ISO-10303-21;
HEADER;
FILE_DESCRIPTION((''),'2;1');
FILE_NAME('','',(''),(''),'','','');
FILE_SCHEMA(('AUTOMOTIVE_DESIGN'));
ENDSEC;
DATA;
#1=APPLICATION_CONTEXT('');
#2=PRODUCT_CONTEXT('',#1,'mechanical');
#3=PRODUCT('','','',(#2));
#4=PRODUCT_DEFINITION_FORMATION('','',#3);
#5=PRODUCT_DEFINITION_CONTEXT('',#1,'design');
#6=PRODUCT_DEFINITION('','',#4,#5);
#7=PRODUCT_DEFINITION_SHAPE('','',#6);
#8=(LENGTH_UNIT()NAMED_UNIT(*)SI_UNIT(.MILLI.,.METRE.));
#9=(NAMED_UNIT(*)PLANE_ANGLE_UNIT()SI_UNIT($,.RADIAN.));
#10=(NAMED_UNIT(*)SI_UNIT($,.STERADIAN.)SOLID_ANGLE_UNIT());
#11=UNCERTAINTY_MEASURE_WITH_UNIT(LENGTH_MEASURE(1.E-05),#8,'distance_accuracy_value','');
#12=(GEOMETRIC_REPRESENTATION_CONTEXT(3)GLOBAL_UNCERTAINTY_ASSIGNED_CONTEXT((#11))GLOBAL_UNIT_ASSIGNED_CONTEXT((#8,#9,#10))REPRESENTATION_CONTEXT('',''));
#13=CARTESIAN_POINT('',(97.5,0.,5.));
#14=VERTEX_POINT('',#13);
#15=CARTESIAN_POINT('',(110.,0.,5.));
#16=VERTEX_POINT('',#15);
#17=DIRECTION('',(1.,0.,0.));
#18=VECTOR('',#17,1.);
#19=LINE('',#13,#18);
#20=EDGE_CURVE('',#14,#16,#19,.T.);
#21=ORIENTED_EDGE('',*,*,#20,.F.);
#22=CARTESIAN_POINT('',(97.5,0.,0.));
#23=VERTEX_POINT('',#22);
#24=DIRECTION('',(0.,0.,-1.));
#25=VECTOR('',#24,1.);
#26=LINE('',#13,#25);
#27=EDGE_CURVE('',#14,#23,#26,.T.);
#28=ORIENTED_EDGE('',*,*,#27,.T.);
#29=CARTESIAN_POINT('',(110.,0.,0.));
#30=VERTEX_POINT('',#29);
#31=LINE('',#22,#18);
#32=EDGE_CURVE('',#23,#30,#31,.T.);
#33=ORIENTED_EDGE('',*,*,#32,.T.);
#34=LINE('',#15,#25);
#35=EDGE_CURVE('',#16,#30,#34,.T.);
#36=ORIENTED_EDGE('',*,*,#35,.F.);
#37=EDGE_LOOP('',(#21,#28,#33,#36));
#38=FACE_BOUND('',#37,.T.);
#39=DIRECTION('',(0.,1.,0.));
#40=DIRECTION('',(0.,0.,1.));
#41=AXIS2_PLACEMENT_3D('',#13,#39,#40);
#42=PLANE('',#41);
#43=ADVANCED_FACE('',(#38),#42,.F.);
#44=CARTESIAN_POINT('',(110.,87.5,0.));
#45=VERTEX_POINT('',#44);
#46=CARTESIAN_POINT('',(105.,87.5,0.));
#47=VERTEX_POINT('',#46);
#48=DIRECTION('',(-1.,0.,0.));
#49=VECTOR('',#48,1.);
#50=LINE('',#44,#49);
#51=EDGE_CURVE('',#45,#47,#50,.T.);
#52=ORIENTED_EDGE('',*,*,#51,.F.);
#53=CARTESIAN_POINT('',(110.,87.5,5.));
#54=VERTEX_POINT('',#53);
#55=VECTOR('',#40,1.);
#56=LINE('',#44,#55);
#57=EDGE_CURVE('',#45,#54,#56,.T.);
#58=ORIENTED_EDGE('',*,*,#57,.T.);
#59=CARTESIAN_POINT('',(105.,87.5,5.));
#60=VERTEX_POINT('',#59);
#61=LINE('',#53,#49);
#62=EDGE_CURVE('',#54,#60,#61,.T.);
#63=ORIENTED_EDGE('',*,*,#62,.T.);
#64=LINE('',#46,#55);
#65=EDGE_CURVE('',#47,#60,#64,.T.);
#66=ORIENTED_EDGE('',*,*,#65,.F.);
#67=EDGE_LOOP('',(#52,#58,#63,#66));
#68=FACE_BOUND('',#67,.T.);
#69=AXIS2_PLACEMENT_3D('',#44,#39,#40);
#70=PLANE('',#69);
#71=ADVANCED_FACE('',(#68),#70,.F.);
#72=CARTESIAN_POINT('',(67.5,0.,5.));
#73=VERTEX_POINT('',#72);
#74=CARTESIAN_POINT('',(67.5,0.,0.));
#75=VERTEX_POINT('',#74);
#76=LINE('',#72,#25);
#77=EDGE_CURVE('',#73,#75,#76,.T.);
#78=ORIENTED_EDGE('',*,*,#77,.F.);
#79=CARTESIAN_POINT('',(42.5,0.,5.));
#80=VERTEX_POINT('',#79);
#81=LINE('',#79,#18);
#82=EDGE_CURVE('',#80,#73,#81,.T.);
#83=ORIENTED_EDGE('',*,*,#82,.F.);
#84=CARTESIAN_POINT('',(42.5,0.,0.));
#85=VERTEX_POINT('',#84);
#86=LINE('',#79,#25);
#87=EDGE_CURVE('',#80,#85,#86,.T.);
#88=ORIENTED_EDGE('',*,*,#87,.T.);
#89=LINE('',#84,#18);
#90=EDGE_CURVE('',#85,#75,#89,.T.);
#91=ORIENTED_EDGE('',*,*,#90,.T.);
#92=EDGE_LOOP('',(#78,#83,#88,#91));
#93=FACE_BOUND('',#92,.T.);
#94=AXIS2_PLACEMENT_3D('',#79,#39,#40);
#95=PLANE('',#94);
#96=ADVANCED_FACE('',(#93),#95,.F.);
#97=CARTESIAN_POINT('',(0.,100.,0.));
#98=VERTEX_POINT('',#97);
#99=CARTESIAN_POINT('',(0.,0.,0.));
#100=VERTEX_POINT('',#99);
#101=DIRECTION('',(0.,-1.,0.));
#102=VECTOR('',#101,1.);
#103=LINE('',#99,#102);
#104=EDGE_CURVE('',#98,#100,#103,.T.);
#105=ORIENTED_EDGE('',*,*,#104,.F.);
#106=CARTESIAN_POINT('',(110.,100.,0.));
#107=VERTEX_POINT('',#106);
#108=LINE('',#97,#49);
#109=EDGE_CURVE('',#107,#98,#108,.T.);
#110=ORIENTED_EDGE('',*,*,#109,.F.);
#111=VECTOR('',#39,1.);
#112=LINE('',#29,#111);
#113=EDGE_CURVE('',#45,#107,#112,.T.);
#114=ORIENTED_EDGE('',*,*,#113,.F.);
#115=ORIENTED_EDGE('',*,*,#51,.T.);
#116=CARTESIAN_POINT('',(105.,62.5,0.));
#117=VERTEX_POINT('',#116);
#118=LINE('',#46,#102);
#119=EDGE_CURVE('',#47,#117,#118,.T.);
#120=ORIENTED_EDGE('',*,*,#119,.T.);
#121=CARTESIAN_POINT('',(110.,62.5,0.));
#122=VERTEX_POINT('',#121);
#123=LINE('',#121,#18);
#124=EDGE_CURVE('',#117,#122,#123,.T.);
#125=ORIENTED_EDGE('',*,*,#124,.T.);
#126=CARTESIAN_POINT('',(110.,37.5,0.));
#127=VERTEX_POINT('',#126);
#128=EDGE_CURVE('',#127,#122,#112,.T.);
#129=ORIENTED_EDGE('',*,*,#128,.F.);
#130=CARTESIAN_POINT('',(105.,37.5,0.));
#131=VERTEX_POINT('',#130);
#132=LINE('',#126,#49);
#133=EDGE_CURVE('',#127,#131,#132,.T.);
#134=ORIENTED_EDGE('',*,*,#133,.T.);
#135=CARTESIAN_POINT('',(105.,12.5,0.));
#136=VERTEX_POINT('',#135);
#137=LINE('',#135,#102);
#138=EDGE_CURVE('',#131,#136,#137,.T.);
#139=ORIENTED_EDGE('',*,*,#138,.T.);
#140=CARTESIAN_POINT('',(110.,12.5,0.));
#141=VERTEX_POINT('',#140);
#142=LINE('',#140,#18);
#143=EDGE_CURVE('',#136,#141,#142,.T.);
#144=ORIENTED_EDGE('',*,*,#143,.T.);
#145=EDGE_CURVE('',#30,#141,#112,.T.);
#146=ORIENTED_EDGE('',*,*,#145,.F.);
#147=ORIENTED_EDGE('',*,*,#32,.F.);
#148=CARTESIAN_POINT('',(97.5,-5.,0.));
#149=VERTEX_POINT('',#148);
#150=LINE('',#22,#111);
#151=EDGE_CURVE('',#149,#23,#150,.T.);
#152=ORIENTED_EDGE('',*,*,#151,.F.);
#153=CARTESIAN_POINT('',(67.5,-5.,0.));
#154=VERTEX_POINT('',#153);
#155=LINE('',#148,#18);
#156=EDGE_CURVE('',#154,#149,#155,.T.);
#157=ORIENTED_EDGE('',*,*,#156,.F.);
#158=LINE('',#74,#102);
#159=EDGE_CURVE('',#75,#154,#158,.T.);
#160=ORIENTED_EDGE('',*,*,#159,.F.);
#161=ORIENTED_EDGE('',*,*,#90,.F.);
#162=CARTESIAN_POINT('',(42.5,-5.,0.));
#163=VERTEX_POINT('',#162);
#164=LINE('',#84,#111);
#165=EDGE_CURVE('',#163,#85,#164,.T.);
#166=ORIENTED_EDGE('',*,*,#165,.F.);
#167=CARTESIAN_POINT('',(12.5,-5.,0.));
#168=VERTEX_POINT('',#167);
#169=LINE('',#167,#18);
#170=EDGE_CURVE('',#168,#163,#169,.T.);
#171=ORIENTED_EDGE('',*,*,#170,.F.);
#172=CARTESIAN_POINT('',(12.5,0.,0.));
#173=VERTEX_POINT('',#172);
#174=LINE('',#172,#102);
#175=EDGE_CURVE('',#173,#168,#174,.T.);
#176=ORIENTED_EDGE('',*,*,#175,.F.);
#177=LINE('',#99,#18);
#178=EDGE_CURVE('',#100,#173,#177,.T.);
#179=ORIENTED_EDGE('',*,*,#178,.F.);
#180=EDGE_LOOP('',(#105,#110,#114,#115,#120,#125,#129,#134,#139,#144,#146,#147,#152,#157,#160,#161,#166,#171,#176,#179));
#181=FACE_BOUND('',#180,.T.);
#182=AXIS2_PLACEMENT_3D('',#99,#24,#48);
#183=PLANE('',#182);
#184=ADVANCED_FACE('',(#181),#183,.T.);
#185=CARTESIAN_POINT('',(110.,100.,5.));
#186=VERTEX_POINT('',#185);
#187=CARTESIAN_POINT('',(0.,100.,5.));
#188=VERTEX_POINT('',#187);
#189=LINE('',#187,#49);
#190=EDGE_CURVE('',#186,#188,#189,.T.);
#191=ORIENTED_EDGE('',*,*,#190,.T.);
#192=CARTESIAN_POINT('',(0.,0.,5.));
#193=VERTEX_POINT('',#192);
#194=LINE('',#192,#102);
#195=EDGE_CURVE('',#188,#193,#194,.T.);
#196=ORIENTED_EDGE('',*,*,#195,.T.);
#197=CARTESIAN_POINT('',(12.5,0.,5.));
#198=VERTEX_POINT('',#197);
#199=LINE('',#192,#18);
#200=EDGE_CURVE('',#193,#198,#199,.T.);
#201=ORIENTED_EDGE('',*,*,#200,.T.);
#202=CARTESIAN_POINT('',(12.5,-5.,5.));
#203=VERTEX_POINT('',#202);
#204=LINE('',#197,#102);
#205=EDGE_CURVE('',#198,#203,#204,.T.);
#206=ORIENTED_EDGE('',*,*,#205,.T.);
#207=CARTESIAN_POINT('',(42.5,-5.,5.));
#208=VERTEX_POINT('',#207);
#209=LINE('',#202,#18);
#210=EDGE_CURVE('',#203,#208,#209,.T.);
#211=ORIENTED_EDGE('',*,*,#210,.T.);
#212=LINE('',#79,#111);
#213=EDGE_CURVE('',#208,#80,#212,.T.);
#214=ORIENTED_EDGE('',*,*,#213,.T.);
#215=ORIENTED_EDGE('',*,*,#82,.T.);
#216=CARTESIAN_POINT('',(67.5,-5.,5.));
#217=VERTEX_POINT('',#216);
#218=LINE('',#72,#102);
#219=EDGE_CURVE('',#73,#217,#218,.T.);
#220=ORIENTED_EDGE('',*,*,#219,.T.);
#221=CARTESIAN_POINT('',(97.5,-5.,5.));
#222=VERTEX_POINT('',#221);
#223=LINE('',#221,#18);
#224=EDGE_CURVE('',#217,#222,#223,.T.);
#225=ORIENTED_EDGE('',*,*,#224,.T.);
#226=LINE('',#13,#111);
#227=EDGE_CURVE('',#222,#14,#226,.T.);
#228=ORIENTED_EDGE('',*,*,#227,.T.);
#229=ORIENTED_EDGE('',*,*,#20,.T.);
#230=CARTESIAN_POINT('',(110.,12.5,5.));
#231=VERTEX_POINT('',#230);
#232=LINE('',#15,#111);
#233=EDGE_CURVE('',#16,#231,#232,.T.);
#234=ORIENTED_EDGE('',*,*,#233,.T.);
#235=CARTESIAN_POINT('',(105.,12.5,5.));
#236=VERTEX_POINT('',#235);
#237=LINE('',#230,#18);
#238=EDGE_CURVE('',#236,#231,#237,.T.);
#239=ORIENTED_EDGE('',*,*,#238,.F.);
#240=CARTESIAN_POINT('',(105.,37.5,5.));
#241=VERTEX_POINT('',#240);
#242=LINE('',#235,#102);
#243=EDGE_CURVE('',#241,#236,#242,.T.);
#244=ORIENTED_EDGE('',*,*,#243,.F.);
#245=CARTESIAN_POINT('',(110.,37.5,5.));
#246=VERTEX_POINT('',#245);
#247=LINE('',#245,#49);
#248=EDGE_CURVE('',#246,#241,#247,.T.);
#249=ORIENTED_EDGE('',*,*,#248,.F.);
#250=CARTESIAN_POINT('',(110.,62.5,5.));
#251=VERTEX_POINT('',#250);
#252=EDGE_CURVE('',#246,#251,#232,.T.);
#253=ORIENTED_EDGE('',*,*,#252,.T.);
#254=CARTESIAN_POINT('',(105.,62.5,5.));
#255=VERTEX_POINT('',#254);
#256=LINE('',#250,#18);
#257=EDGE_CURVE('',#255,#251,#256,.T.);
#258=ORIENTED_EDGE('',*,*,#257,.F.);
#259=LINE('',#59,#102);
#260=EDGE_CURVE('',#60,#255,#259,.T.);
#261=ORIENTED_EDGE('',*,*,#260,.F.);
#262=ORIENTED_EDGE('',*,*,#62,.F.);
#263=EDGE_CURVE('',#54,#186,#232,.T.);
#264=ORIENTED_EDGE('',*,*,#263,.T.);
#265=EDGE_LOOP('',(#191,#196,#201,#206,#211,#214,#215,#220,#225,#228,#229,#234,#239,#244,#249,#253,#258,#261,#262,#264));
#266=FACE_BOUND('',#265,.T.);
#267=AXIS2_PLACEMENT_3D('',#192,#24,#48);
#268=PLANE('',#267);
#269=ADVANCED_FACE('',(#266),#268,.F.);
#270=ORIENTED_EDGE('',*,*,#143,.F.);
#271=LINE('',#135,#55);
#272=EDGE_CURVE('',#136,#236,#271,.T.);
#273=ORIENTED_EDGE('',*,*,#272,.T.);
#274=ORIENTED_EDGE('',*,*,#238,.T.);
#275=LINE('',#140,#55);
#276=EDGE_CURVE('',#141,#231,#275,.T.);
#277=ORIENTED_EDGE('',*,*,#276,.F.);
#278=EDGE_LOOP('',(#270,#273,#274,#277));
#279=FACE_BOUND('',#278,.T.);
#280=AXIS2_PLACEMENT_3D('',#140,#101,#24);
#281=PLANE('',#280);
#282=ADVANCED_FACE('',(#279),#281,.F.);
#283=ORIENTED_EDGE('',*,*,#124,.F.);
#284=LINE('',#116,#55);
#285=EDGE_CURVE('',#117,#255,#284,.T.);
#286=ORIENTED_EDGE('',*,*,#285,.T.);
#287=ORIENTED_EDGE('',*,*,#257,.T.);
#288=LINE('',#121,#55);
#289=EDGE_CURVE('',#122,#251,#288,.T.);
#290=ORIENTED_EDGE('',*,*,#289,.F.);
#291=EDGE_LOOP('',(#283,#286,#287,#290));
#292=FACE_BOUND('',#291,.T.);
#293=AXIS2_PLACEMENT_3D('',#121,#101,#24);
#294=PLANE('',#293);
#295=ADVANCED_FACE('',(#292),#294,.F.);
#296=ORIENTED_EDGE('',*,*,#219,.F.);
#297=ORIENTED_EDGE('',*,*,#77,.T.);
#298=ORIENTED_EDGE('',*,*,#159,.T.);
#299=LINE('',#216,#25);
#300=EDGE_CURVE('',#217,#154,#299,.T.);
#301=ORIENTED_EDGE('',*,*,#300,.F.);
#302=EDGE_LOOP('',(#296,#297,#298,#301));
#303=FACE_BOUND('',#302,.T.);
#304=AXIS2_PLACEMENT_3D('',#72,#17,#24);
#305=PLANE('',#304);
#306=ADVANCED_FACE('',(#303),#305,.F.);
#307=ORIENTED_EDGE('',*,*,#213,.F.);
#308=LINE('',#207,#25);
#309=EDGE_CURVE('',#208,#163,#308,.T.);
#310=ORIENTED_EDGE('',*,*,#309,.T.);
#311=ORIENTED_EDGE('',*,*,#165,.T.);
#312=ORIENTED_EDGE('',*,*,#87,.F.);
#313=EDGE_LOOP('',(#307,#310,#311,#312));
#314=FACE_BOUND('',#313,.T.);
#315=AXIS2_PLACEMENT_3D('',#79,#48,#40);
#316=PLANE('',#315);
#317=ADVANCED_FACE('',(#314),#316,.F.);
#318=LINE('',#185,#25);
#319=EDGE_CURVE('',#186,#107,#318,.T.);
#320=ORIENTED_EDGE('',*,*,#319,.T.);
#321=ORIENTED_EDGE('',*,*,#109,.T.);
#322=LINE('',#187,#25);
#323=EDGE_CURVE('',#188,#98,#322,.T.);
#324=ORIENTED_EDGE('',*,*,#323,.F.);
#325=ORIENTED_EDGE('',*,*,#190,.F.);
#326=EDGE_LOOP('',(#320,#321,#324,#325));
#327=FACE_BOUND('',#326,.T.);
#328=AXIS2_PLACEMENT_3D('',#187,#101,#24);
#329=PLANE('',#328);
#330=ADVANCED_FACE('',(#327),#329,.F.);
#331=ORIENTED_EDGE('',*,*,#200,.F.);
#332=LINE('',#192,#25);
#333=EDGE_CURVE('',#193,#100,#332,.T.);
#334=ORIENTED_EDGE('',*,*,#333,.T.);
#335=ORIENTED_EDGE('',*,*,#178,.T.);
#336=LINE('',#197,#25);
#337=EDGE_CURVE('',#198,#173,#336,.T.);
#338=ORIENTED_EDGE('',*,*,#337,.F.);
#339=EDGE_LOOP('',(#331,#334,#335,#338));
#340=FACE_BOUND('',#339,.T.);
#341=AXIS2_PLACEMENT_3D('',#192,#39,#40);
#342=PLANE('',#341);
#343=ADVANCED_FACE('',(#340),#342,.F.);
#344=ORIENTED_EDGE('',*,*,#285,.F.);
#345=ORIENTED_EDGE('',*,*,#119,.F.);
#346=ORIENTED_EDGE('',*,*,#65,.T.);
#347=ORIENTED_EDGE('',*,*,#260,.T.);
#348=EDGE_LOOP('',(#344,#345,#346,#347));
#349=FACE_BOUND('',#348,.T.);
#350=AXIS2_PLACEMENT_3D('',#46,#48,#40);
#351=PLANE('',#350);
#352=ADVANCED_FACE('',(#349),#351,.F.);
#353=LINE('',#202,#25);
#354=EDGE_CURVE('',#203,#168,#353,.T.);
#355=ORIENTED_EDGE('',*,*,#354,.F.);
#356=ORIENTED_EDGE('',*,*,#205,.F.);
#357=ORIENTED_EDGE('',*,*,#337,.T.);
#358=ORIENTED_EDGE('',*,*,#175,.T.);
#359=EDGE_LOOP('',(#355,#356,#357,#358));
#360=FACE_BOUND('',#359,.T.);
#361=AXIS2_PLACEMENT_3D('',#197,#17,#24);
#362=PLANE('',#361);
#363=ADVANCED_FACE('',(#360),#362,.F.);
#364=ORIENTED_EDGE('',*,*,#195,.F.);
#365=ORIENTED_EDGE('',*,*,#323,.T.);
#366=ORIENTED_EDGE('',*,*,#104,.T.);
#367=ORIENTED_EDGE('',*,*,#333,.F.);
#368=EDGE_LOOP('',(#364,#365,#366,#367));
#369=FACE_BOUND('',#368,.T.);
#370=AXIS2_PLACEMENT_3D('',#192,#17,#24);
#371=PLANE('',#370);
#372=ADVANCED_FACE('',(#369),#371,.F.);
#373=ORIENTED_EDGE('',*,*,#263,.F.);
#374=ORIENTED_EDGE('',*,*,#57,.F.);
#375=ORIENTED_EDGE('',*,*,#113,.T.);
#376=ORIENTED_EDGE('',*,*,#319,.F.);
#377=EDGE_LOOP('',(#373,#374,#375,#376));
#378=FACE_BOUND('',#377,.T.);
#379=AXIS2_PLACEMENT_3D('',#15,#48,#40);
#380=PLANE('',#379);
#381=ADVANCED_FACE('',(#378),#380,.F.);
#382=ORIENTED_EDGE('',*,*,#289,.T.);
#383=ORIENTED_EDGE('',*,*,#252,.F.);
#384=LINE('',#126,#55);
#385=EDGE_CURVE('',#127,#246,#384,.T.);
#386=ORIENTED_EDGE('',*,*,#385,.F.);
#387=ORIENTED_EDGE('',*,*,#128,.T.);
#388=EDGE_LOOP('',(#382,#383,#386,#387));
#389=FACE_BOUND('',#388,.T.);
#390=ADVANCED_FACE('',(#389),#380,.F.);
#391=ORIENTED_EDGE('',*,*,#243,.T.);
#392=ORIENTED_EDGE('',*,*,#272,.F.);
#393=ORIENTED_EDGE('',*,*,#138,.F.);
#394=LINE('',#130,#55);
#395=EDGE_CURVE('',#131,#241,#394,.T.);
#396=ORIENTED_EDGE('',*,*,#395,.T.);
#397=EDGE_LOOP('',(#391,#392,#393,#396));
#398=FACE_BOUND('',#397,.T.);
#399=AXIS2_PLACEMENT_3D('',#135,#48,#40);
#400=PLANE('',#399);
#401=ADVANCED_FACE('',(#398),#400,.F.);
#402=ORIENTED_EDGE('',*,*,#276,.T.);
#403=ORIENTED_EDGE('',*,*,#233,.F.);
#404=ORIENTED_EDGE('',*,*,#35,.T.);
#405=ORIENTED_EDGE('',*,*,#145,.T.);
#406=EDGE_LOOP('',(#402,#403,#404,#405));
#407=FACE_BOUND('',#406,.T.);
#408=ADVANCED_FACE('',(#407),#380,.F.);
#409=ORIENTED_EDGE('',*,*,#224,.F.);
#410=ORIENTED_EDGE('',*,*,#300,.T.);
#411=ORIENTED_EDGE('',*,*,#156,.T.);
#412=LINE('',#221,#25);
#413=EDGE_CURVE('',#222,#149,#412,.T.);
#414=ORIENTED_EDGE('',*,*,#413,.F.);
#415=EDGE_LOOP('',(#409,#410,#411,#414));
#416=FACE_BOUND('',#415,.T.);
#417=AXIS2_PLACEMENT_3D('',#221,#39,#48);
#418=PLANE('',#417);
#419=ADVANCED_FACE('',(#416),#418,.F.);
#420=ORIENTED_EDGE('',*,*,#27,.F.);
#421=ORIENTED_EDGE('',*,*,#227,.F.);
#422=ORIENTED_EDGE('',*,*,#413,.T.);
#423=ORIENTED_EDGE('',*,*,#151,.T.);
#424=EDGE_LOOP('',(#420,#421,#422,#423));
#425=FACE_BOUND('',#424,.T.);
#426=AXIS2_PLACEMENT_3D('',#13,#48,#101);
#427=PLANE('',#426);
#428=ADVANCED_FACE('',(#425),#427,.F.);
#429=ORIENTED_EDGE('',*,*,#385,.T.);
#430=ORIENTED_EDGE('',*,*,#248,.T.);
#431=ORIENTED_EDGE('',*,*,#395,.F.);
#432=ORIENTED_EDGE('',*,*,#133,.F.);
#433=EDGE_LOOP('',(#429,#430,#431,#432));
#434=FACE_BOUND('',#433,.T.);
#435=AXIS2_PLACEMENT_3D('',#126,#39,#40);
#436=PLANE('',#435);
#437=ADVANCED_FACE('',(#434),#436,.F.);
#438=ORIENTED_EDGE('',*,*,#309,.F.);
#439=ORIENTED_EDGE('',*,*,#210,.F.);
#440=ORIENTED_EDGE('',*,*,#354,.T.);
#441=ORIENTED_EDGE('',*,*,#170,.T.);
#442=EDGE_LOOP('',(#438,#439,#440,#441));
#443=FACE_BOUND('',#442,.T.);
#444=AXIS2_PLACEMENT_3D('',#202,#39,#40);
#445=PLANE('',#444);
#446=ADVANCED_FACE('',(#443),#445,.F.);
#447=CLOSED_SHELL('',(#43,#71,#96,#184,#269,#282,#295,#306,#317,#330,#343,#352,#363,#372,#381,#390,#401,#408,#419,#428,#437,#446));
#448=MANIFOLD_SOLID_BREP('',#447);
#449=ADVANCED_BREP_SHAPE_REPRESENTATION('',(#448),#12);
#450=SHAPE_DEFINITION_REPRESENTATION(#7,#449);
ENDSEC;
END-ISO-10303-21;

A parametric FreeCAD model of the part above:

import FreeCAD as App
import Part
import Sketcher
from FreeCAD import Vector


def add_polygon(sketch, points):
    """Adds a closed chain of lines whose ends are joined by coincident constraints."""
    first, n = sketch.GeometryCount, len(points)
    for a, b in zip(points, points[1:] + points[:1]):
        sketch.addGeometry(Part.LineSegment(App.Vector(*a, 0), App.Vector(*b, 0)), False)
    for i in range(n):
        sketch.addConstraint(Sketcher.Constraint("Coincident", first + i, 2, first + (i + 1) % n, 1))

doc = App.newDocument("Part")
body = doc.addObject("PartDesign::Body", "Body")

# Sketch on XY plane
sketch1 = doc.addObject("Sketcher::SketchObject", "Sketch")
body.addObject(sketch1)
sketch1.AttachmentSupport = (doc.XY_Plane, [""])
sketch1.MapMode = "FlatFace"
add_polygon(sketch1, [(0, 0), (12, 0), (12, -5), (42, -5), (42, 0), (68, 0), (68, -5), (98, -5), (98, 0), (110, 0), (110, 100), (0, 100)])  # lines 0-11
sketch1.addConstraint(Sketcher.Constraint("Horizontal", 0))
sketch1.addConstraint(Sketcher.Constraint("Vertical", 1))
sketch1.addConstraint(Sketcher.Constraint("Horizontal", 2))
sketch1.addConstraint(Sketcher.Constraint("Vertical", 3))
sketch1.addConstraint(Sketcher.Constraint("Horizontal", 4))
sketch1.addConstraint(Sketcher.Constraint("Vertical", 5))
sketch1.addConstraint(Sketcher.Constraint("Horizontal", 6))
sketch1.addConstraint(Sketcher.Constraint("Vertical", 7))
sketch1.addConstraint(Sketcher.Constraint("Horizontal", 8))
sketch1.addConstraint(Sketcher.Constraint("Vertical", 9))
sketch1.addConstraint(Sketcher.Constraint("Horizontal", 10))
sketch1.addConstraint(Sketcher.Constraint("Vertical", 11))
sketch1.addConstraint(Sketcher.Constraint("Coincident", 11, 2, -1, 1))
sketch1.addConstraint(Sketcher.Constraint("PointOnObject", 3, 2, -1))
sketch1.addConstraint(Sketcher.Constraint("PointOnObject", 7, 2, -1))
sketch1.addConstraint(Sketcher.Constraint("Horizontal", 2, 2, 5, 2))
sketch1.addConstraint(Sketcher.Constraint("Equal", 2, 6))
sketch1.addConstraint(Sketcher.Constraint("Equal", 0, 8))
sketch1.addConstraint(Sketcher.Constraint("DistanceX", 2, 1, 2, 2, 30.0))
sketch1.addConstraint(Sketcher.Constraint("DistanceX", 4, 1, 4, 2, 25.0))
sketch1.addConstraint(Sketcher.Constraint("DistanceX", 10, 2, 10, 1, 110.0))
sketch1.addConstraint(Sketcher.Constraint("DistanceY", 1, 2, 1, 1, 5.0))
sketch1.addConstraint(Sketcher.Constraint("DistanceY", 9, 1, 9, 2, 100.0))
pad1 = doc.addObject("PartDesign::Pad", "Pad")
body.addObject(pad1)
pad1.Profile = sketch1
pad1.Length = 5

# Sketch on XY plane
sketch2 = doc.addObject("Sketcher::SketchObject", "Sketch001")
body.addObject(sketch2)
sketch2.AttachmentSupport = (doc.XY_Plane, [""])
sketch2.MapMode = "FlatFace"
sketch2.AttachmentOffset = App.Placement(Vector(0, 0, 5), App.Rotation())
add_polygon(sketch2, [(105, 88), (105, 62), (110, 62), (110, 88)])  # lines 0-3
add_polygon(sketch2, [(105, 38), (105, 12), (110, 12), (110, 38)])  # lines 4-7
sketch2.addConstraint(Sketcher.Constraint("Vertical", 0))
sketch2.addConstraint(Sketcher.Constraint("Horizontal", 1))
sketch2.addConstraint(Sketcher.Constraint("Vertical", 2))
sketch2.addConstraint(Sketcher.Constraint("Horizontal", 3))
sketch2.addConstraint(Sketcher.Constraint("Vertical", 4))
sketch2.addConstraint(Sketcher.Constraint("Horizontal", 5))
sketch2.addConstraint(Sketcher.Constraint("Vertical", 6))
sketch2.addConstraint(Sketcher.Constraint("Horizontal", 7))
sketch2.addConstraint(Sketcher.Constraint("Vertical", 3, 2, 4, 2))
sketch2.addConstraint(Sketcher.Constraint("Vertical", 2, 2, 5, 2))
sketch2.addConstraint(Sketcher.Constraint("Equal", 2, 4))
sketch2.addConstraint(Sketcher.Constraint("DistanceX", 1, 1, 1, 2, 5.0))
sketch2.addConstraint(Sketcher.Constraint("DistanceY", 0, 2, 0, 1, 25.0))
sketch2.addConstraint(Sketcher.Constraint("DistanceX", -1, 1, 0, 2, 105.0))
sketch2.addConstraint(Sketcher.Constraint("DistanceY", 4, 2, 0, 2, 50.0))
sketch2.addConstraint(Sketcher.Constraint("DistanceY", -1, 1, 0, 2, 62.5))
pocket1 = doc.addObject("PartDesign::Pocket", "Pocket")
body.addObject(pocket1)
pocket1.Profile = sketch2
pocket1.Length = 5

doc.recompute()
